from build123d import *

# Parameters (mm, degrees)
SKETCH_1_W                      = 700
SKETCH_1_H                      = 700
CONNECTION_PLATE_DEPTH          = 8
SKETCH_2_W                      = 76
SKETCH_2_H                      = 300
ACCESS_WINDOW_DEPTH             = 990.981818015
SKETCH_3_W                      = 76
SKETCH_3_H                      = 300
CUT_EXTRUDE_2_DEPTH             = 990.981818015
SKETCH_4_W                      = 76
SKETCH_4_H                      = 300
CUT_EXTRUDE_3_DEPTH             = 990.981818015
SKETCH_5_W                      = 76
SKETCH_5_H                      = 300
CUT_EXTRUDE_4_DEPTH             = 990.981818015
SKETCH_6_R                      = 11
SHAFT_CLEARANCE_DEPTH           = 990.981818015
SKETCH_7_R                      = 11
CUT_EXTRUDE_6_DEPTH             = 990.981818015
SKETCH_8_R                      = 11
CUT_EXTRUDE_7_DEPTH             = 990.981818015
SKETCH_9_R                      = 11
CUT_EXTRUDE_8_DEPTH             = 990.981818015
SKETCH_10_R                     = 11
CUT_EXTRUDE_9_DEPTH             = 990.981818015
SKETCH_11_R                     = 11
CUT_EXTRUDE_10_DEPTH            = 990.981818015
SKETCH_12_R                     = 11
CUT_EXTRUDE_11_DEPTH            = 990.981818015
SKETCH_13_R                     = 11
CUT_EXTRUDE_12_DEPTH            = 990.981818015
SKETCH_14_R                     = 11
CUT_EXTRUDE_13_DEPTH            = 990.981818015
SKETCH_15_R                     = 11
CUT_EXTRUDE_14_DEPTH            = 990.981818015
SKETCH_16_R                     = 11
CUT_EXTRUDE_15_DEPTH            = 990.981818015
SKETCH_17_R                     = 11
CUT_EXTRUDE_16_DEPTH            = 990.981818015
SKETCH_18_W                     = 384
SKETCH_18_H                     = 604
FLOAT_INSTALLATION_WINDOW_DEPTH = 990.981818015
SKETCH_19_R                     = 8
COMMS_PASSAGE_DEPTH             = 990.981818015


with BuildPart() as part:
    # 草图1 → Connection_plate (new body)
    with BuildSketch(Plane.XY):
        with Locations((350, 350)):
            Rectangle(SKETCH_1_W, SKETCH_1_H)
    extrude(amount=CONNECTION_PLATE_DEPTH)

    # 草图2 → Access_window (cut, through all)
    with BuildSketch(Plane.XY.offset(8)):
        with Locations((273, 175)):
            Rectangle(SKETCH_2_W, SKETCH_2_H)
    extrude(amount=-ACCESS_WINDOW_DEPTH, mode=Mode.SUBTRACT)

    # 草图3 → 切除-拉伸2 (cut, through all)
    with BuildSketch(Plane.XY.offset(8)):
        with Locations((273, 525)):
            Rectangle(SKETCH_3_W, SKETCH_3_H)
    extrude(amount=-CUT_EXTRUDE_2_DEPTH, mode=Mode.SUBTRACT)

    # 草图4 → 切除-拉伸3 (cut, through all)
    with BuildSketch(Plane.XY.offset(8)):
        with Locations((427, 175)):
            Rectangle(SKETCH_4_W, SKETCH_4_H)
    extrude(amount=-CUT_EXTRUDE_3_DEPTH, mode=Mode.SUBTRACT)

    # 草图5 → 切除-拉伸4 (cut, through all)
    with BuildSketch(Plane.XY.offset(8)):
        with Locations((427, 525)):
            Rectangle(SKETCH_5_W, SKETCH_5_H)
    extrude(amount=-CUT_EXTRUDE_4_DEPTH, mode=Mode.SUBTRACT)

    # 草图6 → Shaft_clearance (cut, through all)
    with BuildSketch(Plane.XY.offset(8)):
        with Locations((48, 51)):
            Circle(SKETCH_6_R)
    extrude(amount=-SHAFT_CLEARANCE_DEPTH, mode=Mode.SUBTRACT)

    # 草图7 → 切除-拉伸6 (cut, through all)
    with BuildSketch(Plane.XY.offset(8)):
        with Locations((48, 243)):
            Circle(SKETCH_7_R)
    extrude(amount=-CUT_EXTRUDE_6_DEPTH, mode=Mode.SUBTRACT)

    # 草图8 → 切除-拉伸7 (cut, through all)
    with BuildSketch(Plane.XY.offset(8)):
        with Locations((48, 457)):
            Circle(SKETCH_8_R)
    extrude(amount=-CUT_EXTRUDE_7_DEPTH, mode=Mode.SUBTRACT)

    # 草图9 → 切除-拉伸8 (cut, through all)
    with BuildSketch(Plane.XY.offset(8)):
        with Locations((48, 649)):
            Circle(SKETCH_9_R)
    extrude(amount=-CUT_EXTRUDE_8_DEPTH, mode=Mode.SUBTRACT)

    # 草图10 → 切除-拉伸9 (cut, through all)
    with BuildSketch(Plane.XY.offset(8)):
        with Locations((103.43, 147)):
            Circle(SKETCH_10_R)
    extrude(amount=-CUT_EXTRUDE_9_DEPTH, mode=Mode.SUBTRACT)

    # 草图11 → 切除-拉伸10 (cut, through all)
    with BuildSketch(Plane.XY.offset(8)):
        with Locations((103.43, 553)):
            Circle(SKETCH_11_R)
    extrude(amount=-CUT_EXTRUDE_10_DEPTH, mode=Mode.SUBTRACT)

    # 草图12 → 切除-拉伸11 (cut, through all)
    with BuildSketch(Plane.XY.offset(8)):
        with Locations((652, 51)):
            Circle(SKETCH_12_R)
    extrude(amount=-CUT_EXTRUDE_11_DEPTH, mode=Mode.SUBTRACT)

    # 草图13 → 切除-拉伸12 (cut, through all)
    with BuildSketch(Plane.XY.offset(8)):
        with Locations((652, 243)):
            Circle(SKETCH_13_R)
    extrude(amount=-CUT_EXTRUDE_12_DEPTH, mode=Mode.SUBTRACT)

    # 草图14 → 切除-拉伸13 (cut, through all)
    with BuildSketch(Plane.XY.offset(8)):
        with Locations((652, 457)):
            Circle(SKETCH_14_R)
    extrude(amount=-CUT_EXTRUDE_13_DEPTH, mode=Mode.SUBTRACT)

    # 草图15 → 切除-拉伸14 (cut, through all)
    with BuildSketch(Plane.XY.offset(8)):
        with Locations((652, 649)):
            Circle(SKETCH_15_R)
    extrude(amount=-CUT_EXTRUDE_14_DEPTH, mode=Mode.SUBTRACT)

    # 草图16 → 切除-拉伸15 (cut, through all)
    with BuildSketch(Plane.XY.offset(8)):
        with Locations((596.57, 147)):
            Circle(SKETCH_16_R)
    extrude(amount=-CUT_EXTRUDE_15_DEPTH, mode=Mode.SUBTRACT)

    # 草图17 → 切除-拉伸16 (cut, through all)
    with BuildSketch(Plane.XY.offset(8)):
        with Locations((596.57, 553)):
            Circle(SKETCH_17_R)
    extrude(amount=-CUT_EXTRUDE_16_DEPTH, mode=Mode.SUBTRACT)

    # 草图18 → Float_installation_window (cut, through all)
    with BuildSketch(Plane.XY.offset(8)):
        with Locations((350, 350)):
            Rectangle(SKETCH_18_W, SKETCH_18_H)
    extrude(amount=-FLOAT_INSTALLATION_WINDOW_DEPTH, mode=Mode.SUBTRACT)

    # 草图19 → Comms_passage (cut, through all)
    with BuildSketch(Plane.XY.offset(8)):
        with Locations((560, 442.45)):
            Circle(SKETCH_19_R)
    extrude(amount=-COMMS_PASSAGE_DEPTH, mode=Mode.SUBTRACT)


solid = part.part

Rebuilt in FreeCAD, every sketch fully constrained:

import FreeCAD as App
import Part
import Sketcher

doc = App.newDocument("Part")
params = doc.addObject("Spreadsheet::Sheet", "Params")
for row, (alias, value) in enumerate([
    ("sketch1_width", "700 mm"),
    ("pad1_length", "8 mm"),
    ("sketch2_width", "76 mm"),
    ("sketch2_height", "300 mm"),
    ("sketch3_width", "76 mm"),
    ("sketch3_height", "300 mm"),
    ("sketch4_width", "76 mm"),
    ("sketch4_height", "300 mm"),
    ("sketch5_width", "76 mm"),
    ("sketch5_height", "300 mm"),
    ("sketch6_diameter", "22 mm"),
    ("sketch7_diameter", "22 mm"),
    ("sketch8_diameter", "22 mm"),
    ("sketch9_diameter", "22 mm"),
    ("sketch10_diameter", "22 mm"),
    ("sketch11_diameter", "22 mm"),
    ("sketch12_diameter", "22 mm"),
    ("sketch13_diameter", "22 mm"),
    ("sketch14_diameter", "22 mm"),
    ("sketch15_diameter", "22 mm"),
    ("sketch16_diameter", "22 mm"),
    ("sketch17_diameter", "22 mm"),
    ("sketch18_width", "384 mm"),
    ("sketch18_height", "604 mm"),
    ("sketch19_diameter", "16 mm"),
], start=1):
    params.set(f"A{row}", alias)
    params.set(f"B{row}", "=" + value)
    params.setAlias(f"B{row}", alias)

body = doc.addObject("PartDesign::Body", "Body")

# Sketch on XY plane
sketch1 = doc.addObject("Sketcher::SketchObject", "Sketch")
body.addObject(sketch1)
sketch1.AttachmentSupport = (doc.XY_Plane, [""])
sketch1.MapMode = "FlatFace"
sketch1.addGeometry([
    Part.LineSegment(App.Vector(0, 700, 0), App.Vector(0, 0, 0)),
    Part.LineSegment(App.Vector(0, 0, 0), App.Vector(700, 0, 0)),
    Part.LineSegment(App.Vector(700, 0, 0), App.Vector(700, 700, 0)),
    Part.LineSegment(App.Vector(700, 700, 0), App.Vector(0, 700, 0)),
], False)
sketch1.addConstraint([
    Sketcher.Constraint("Coincident", 0, 2, 1, 1),
    Sketcher.Constraint("Coincident", 1, 2, 2, 1),
    Sketcher.Constraint("Coincident", 2, 2, 3, 1),
    Sketcher.Constraint("Coincident", 3, 2, 0, 1),
    Sketcher.Constraint("Vertical", 0),
    Sketcher.Constraint("Horizontal", 1),
    Sketcher.Constraint("Vertical", 2),
    Sketcher.Constraint("Horizontal", 3),
    Sketcher.Constraint("Coincident", 0, 2, -1, 1),
    Sketcher.Constraint("Equal", 3, 0),
    Sketcher.Constraint("DistanceX", 1, 1, 1, 2, 700.0),
])
sketch1.setExpression("Constraints[10]", "Params.sketch1_width")
pad1 = doc.addObject("PartDesign::Pad", "Pad")
body.addObject(pad1)
pad1.Profile = sketch1
pad1.setExpression("Length", "Params.pad1_length")

# Sketch on XY plane
sketch2 = doc.addObject("Sketcher::SketchObject", "Sketch001")
body.addObject(sketch2)
sketch2.AttachmentSupport = (doc.XY_Plane, [""])
sketch2.MapMode = "FlatFace"
sketch2.AttachmentOffset = App.Placement(App.Vector(0, 0, 8), App.Rotation())
sketch2.addGeometry([
    Part.LineSegment(App.Vector(235, 325, 0), App.Vector(235, 25, 0)),
    Part.LineSegment(App.Vector(235, 25, 0), App.Vector(311, 25, 0)),
    Part.LineSegment(App.Vector(311, 25, 0), App.Vector(311, 325, 0)),
    Part.LineSegment(App.Vector(311, 325, 0), App.Vector(235, 325, 0)),
], False)
sketch2.addConstraint([
    Sketcher.Constraint("Coincident", 0, 2, 1, 1),
    Sketcher.Constraint("Coincident", 1, 2, 2, 1),
    Sketcher.Constraint("Coincident", 2, 2, 3, 1),
    Sketcher.Constraint("Coincident", 3, 2, 0, 1),
    Sketcher.Constraint("Vertical", 0),
    Sketcher.Constraint("Horizontal", 1),
    Sketcher.Constraint("Vertical", 2),
    Sketcher.Constraint("Horizontal", 3),
    Sketcher.Constraint("DistanceX", 1, 1, 1, 2, 76.0),
    Sketcher.Constraint("DistanceY", 0, 2, 0, 1, 300.0),
    Sketcher.Constraint("DistanceX", -1, 1, 0, 2, 235.0),
    Sketcher.Constraint("DistanceY", -1, 1, 0, 2, 25.0),
])
sketch2.setExpression("Constraints[8]", "Params.sketch2_width")
sketch2.setExpression("Constraints[9]", "Params.sketch2_height")
pocket1 = doc.addObject("PartDesign::Pocket", "Pocket")
body.addObject(pocket1)
pocket1.Profile = sketch2
pocket1.Type = "ThroughAll"

# Sketch on XY plane
sketch3 = doc.addObject("Sketcher::SketchObject", "Sketch002")
body.addObject(sketch3)
sketch3.AttachmentSupport = (doc.XY_Plane, [""])
sketch3.MapMode = "FlatFace"
sketch3.AttachmentOffset = App.Placement(App.Vector(0, 0, 8), App.Rotation())
sketch3.addGeometry([
    Part.LineSegment(App.Vector(235, 675, 0), App.Vector(235, 375, 0)),
    Part.LineSegment(App.Vector(235, 375, 0), App.Vector(311, 375, 0)),
    Part.LineSegment(App.Vector(311, 375, 0), App.Vector(311, 675, 0)),
    Part.LineSegment(App.Vector(311, 675, 0), App.Vector(235, 675, 0)),
], False)
sketch3.addConstraint([
    Sketcher.Constraint("Coincident", 0, 2, 1, 1),
    Sketcher.Constraint("Coincident", 1, 2, 2, 1),
    Sketcher.Constraint("Coincident", 2, 2, 3, 1),
    Sketcher.Constraint("Coincident", 3, 2, 0, 1),
    Sketcher.Constraint("Vertical", 0),
    Sketcher.Constraint("Horizontal", 1),
    Sketcher.Constraint("Vertical", 2),
    Sketcher.Constraint("Horizontal", 3),
    Sketcher.Constraint("DistanceX", 1, 1, 1, 2, 76.0),
    Sketcher.Constraint("DistanceY", 0, 2, 0, 1, 300.0),
    Sketcher.Constraint("DistanceX", -1, 1, 0, 2, 235.0),
    Sketcher.Constraint("DistanceY", -1, 1, 0, 2, 375.0),
])
sketch3.setExpression("Constraints[8]", "Params.sketch3_width")
sketch3.setExpression("Constraints[9]", "Params.sketch3_height")
pocket2 = doc.addObject("PartDesign::Pocket", "Pocket001")
body.addObject(pocket2)
pocket2.Profile = sketch3
pocket2.Type = "ThroughAll"

# Sketch on XY plane
sketch4 = doc.addObject("Sketcher::SketchObject", "Sketch003")
body.addObject(sketch4)
sketch4.AttachmentSupport = (doc.XY_Plane, [""])
sketch4.MapMode = "FlatFace"
sketch4.AttachmentOffset = App.Placement(App.Vector(0, 0, 8), App.Rotation())
sketch4.addGeometry([
    Part.LineSegment(App.Vector(389, 325, 0), App.Vector(389, 25, 0)),
    Part.LineSegment(App.Vector(389, 25, 0), App.Vector(465, 25, 0)),
    Part.LineSegment(App.Vector(465, 25, 0), App.Vector(465, 325, 0)),
    Part.LineSegment(App.Vector(465, 325, 0), App.Vector(389, 325, 0)),
], False)
sketch4.addConstraint([
    Sketcher.Constraint("Coincident", 0, 2, 1, 1),
    Sketcher.Constraint("Coincident", 1, 2, 2, 1),
    Sketcher.Constraint("Coincident", 2, 2, 3, 1),
    Sketcher.Constraint("Coincident", 3, 2, 0, 1),
    Sketcher.Constraint("Vertical", 0),
    Sketcher.Constraint("Horizontal", 1),
    Sketcher.Constraint("Vertical", 2),
    Sketcher.Constraint("Horizontal", 3),
    Sketcher.Constraint("DistanceX", 1, 1, 1, 2, 76.0),
    Sketcher.Constraint("DistanceY", 0, 2, 0, 1, 300.0),
    Sketcher.Constraint("DistanceX", -1, 1, 0, 2, 389.0),
    Sketcher.Constraint("DistanceY", -1, 1, 0, 2, 25.0),
])
sketch4.setExpression("Constraints[8]", "Params.sketch4_width")
sketch4.setExpression("Constraints[9]", "Params.sketch4_height")
pocket3 = doc.addObject("PartDesign::Pocket", "Pocket002")
body.addObject(pocket3)
pocket3.Profile = sketch4
pocket3.Type = "ThroughAll"

# Sketch on XY plane
sketch5 = doc.addObject("Sketcher::SketchObject", "Sketch004")
body.addObject(sketch5)
sketch5.AttachmentSupport = (doc.XY_Plane, [""])
sketch5.MapMode = "FlatFace"
sketch5.AttachmentOffset = App.Placement(App.Vector(0, 0, 8), App.Rotation())
sketch5.addGeometry([
    Part.LineSegment(App.Vector(389, 675, 0), App.Vector(389, 375, 0)),
    Part.LineSegment(App.Vector(389, 375, 0), App.Vector(465, 375, 0)),
    Part.LineSegment(App.Vector(465, 375, 0), App.Vector(465, 675, 0)),
    Part.LineSegment(App.Vector(465, 675, 0), App.Vector(389, 675, 0)),
], False)
sketch5.addConstraint([
    Sketcher.Constraint("Coincident", 0, 2, 1, 1),
    Sketcher.Constraint("Coincident", 1, 2, 2, 1),
    Sketcher.Constraint("Coincident", 2, 2, 3, 1),
    Sketcher.Constraint("Coincident", 3, 2, 0, 1),
    Sketcher.Constraint("Vertical", 0),
    Sketcher.Constraint("Horizontal", 1),
    Sketcher.Constraint("Vertical", 2),
    Sketcher.Constraint("Horizontal", 3),
    Sketcher.Constraint("DistanceX", 1, 1, 1, 2, 76.0),
    Sketcher.Constraint("DistanceY", 0, 2, 0, 1, 300.0),
    Sketcher.Constraint("DistanceX", -1, 1, 0, 2, 389.0),
    Sketcher.Constraint("DistanceY", -1, 1, 0, 2, 375.0),
])
sketch5.setExpression("Constraints[8]", "Params.sketch5_width")
sketch5.setExpression("Constraints[9]", "Params.sketch5_height")
pocket4 = doc.addObject("PartDesign::Pocket", "Pocket003")
body.addObject(pocket4)
pocket4.Profile = sketch5
pocket4.Type = "ThroughAll"

# Sketch on XY plane
sketch6 = doc.addObject("Sketcher::SketchObject", "Sketch005")
body.addObject(sketch6)
sketch6.AttachmentSupport = (doc.XY_Plane, [""])
sketch6.MapMode = "FlatFace"
sketch6.AttachmentOffset = App.Placement(App.Vector(0, 0, 8), App.Rotation())
sketch6.addGeometry(Part.Circle(App.Vector(48, 51, 0), App.Vector(0, 0, 1), 11), False)
sketch6.addConstraint([
    Sketcher.Constraint("Diameter", 0, 22.0),
    Sketcher.Constraint("DistanceX", -1, 1, 0, 3, 48.0),
    Sketcher.Constraint("DistanceY", -1, 1, 0, 3, 51.0),
])
sketch6.setExpression("Constraints[0]", "Params.sketch6_diameter")
pocket5 = doc.addObject("PartDesign::Pocket", "Pocket004")
body.addObject(pocket5)
pocket5.Profile = sketch6
pocket5.Type = "ThroughAll"

# Sketch on XY plane
sketch7 = doc.addObject("Sketcher::SketchObject", "Sketch006")
body.addObject(sketch7)
sketch7.AttachmentSupport = (doc.XY_Plane, [""])
sketch7.MapMode = "FlatFace"
sketch7.AttachmentOffset = App.Placement(App.Vector(0, 0, 8), App.Rotation())
sketch7.addGeometry(Part.Circle(App.Vector(48, 243, 0), App.Vector(0, 0, 1), 11), False)
sketch7.addConstraint([
    Sketcher.Constraint("Diameter", 0, 22.0),
    Sketcher.Constraint("DistanceX", -1, 1, 0, 3, 48.0),
    Sketcher.Constraint("DistanceY", -1, 1, 0, 3, 243.0),
])
sketch7.setExpression("Constraints[0]", "Params.sketch7_diameter")
pocket6 = doc.addObject("PartDesign::Pocket", "Pocket005")
body.addObject(pocket6)
pocket6.Profile = sketch7
pocket6.Type = "ThroughAll"

# Sketch on XY plane
sketch8 = doc.addObject("Sketcher::SketchObject", "Sketch007")
body.addObject(sketch8)
sketch8.AttachmentSupport = (doc.XY_Plane, [""])
sketch8.MapMode = "FlatFace"
sketch8.AttachmentOffset = App.Placement(App.Vector(0, 0, 8), App.Rotation())
sketch8.addGeometry(Part.Circle(App.Vector(48, 457, 0), App.Vector(0, 0, 1), 11), False)
sketch8.addConstraint([
    Sketcher.Constraint("Diameter", 0, 22.0),
    Sketcher.Constraint("DistanceX", -1, 1, 0, 3, 48.0),
    Sketcher.Constraint("DistanceY", -1, 1, 0, 3, 457.0),
])
sketch8.setExpression("Constraints[0]", "Params.sketch8_diameter")
pocket7 = doc.addObject("PartDesign::Pocket", "Pocket006")
body.addObject(pocket7)
pocket7.Profile = sketch8
pocket7.Type = "ThroughAll"

# Sketch on XY plane
sketch9 = doc.addObject("Sketcher::SketchObject", "Sketch008")
body.addObject(sketch9)
sketch9.AttachmentSupport = (doc.XY_Plane, [""])
sketch9.MapMode = "FlatFace"
sketch9.AttachmentOffset = App.Placement(App.Vector(0, 0, 8), App.Rotation())
sketch9.addGeometry(Part.Circle(App.Vector(48, 649, 0), App.Vector(0, 0, 1), 11), False)
sketch9.addConstraint([
    Sketcher.Constraint("Diameter", 0, 22.0),
    Sketcher.Constraint("DistanceX", -1, 1, 0, 3, 48.0),
    Sketcher.Constraint("DistanceY", -1, 1, 0, 3, 649.0),
])
sketch9.setExpression("Constraints[0]", "Params.sketch9_diameter")
pocket8 = doc.addObject("PartDesign::Pocket", "Pocket007")
body.addObject(pocket8)
pocket8.Profile = sketch9
pocket8.Type = "ThroughAll"

# Sketch on XY plane
sketch10 = doc.addObject("Sketcher::SketchObject", "Sketch009")
body.addObject(sketch10)
sketch10.AttachmentSupport = (doc.XY_Plane, [""])
sketch10.MapMode = "FlatFace"
sketch10.AttachmentOffset = App.Placement(App.Vector(0, 0, 8), App.Rotation())
sketch10.addGeometry(Part.Circle(App.Vector(103, 147, 0), App.Vector(0, 0, 1), 11), False)
sketch10.addConstraint([
    Sketcher.Constraint("Diameter", 0, 22.0),
    Sketcher.Constraint("DistanceY", -1, 1, 0, 3, 147.0),
    Sketcher.Constraint("DistanceX", -1, 1, 0, 3, 103.43),
])
sketch10.setExpression("Constraints[0]", "Params.sketch10_diameter")
pocket9 = doc.addObject("PartDesign::Pocket", "Pocket008")
body.addObject(pocket9)
pocket9.Profile = sketch10
pocket9.Type = "ThroughAll"

# Sketch on XY plane
sketch11 = doc.addObject("Sketcher::SketchObject", "Sketch010")
body.addObject(sketch11)
sketch11.AttachmentSupport = (doc.XY_Plane, [""])
sketch11.MapMode = "FlatFace"
sketch11.AttachmentOffset = App.Placement(App.Vector(0, 0, 8), App.Rotation())
sketch11.addGeometry(Part.Circle(App.Vector(103, 553, 0), App.Vector(0, 0, 1), 11), False)
sketch11.addConstraint([
    Sketcher.Constraint("Diameter", 0, 22.0),
    Sketcher.Constraint("DistanceY", -1, 1, 0, 3, 553.0),
    Sketcher.Constraint("DistanceX", -1, 1, 0, 3, 103.43),
])
sketch11.setExpression("Constraints[0]", "Params.sketch11_diameter")
pocket10 = doc.addObject("PartDesign::Pocket", "Pocket009")
body.addObject(pocket10)
pocket10.Profile = sketch11
pocket10.Type = "ThroughAll"

# Sketch on XY plane
sketch12 = doc.addObject("Sketcher::SketchObject", "Sketch011")
body.addObject(sketch12)
sketch12.AttachmentSupport = (doc.XY_Plane, [""])
sketch12.MapMode = "FlatFace"
sketch12.AttachmentOffset = App.Placement(App.Vector(0, 0, 8), App.Rotation())
sketch12.addGeometry(Part.Circle(App.Vector(652, 51, 0), App.Vector(0, 0, 1), 11), False)
sketch12.addConstraint([
    Sketcher.Constraint("Diameter", 0, 22.0),
    Sketcher.Constraint("DistanceX", -1, 1, 0, 3, 652.0),
    Sketcher.Constraint("DistanceY", -1, 1, 0, 3, 51.0),
])
sketch12.setExpression("Constraints[0]", "Params.sketch12_diameter")
pocket11 = doc.addObject("PartDesign::Pocket", "Pocket010")
body.addObject(pocket11)
pocket11.Profile = sketch12
pocket11.Type = "ThroughAll"

# Sketch on XY plane
sketch13 = doc.addObject("Sketcher::SketchObject", "Sketch012")
body.addObject(sketch13)
sketch13.AttachmentSupport = (doc.XY_Plane, [""])
sketch13.MapMode = "FlatFace"
sketch13.AttachmentOffset = App.Placement(App.Vector(0, 0, 8), App.Rotation())
sketch13.addGeometry(Part.Circle(App.Vector(652, 243, 0), App.Vector(0, 0, 1), 11), False)
sketch13.addConstraint([
    Sketcher.Constraint("Diameter", 0, 22.0),
    Sketcher.Constraint("DistanceX", -1, 1, 0, 3, 652.0),
    Sketcher.Constraint("DistanceY", -1, 1, 0, 3, 243.0),
])
sketch13.setExpression("Constraints[0]", "Params.sketch13_diameter")
pocket12 = doc.addObject("PartDesign::Pocket", "Pocket011")
body.addObject(pocket12)
pocket12.Profile = sketch13
pocket12.Type = "ThroughAll"

# Sketch on XY plane
sketch14 = doc.addObject("Sketcher::SketchObject", "Sketch013")
body.addObject(sketch14)
sketch14.AttachmentSupport = (doc.XY_Plane, [""])
sketch14.MapMode = "FlatFace"
sketch14.AttachmentOffset = App.Placement(App.Vector(0, 0, 8), App.Rotation())
sketch14.addGeometry(Part.Circle(App.Vector(652, 457, 0), App.Vector(0, 0, 1), 11), False)
sketch14.addConstraint([
    Sketcher.Constraint("Diameter", 0, 22.0),
    Sketcher.Constraint("DistanceX", -1, 1, 0, 3, 652.0),
    Sketcher.Constraint("DistanceY", -1, 1, 0, 3, 457.0),
])
sketch14.setExpression("Constraints[0]", "Params.sketch14_diameter")
pocket13 = doc.addObject("PartDesign::Pocket", "Pocket012")
body.addObject(pocket13)
pocket13.Profile = sketch14
pocket13.Type = "ThroughAll"

# Sketch on XY plane
sketch15 = doc.addObject("Sketcher::SketchObject", "Sketch014")
body.addObject(sketch15)
sketch15.AttachmentSupport = (doc.XY_Plane, [""])
sketch15.MapMode = "FlatFace"
sketch15.AttachmentOffset = App.Placement(App.Vector(0, 0, 8), App.Rotation())
sketch15.addGeometry(Part.Circle(App.Vector(652, 649, 0), App.Vector(0, 0, 1), 11), False)
sketch15.addConstraint([
    Sketcher.Constraint("Diameter", 0, 22.0),
    Sketcher.Constraint("DistanceX", -1, 1, 0, 3, 652.0),
    Sketcher.Constraint("DistanceY", -1, 1, 0, 3, 649.0),
])
sketch15.setExpression("Constraints[0]", "Params.sketch15_diameter")
pocket14 = doc.addObject("PartDesign::Pocket", "Pocket013")
body.addObject(pocket14)
pocket14.Profile = sketch15
pocket14.Type = "ThroughAll"

# Sketch on XY plane
sketch16 = doc.addObject("Sketcher::SketchObject", "Sketch015")
body.addObject(sketch16)
sketch16.AttachmentSupport = (doc.XY_Plane, [""])
sketch16.MapMode = "FlatFace"
sketch16.AttachmentOffset = App.Placement(App.Vector(0, 0, 8), App.Rotation())
sketch16.addGeometry(Part.Circle(App.Vector(597, 147, 0), App.Vector(0, 0, 1), 11), False)
sketch16.addConstraint([
    Sketcher.Constraint("Diameter", 0, 22.0),
    Sketcher.Constraint("DistanceY", -1, 1, 0, 3, 147.0),
    Sketcher.Constraint("DistanceX", -1, 1, 0, 3, 596.57),
])
sketch16.setExpression("Constraints[0]", "Params.sketch16_diameter")
pocket15 = doc.addObject("PartDesign::Pocket", "Pocket014")
body.addObject(pocket15)
pocket15.Profile = sketch16
pocket15.Type = "ThroughAll"

# Sketch on XY plane
sketch17 = doc.addObject("Sketcher::SketchObject", "Sketch016")
body.addObject(sketch17)
sketch17.AttachmentSupport = (doc.XY_Plane, [""])
sketch17.MapMode = "FlatFace"
sketch17.AttachmentOffset = App.Placement(App.Vector(0, 0, 8), App.Rotation())
sketch17.addGeometry(Part.Circle(App.Vector(597, 553, 0), App.Vector(0, 0, 1), 11), False)
sketch17.addConstraint([
    Sketcher.Constraint("Diameter", 0, 22.0),
    Sketcher.Constraint("DistanceY", -1, 1, 0, 3, 553.0),
    Sketcher.Constraint("DistanceX", -1, 1, 0, 3, 596.57),
])
sketch17.setExpression("Constraints[0]", "Params.sketch17_diameter")
pocket16 = doc.addObject("PartDesign::Pocket", "Pocket015")
body.addObject(pocket16)
pocket16.Profile = sketch17
pocket16.Type = "ThroughAll"

# Sketch on XY plane
sketch18 = doc.addObject("Sketcher::SketchObject", "Sketch017")
body.addObject(sketch18)
sketch18.AttachmentSupport = (doc.XY_Plane, [""])
sketch18.MapMode = "FlatFace"
sketch18.AttachmentOffset = App.Placement(App.Vector(0, 0, 8), App.Rotation())
sketch18.addGeometry([
    Part.LineSegment(App.Vector(158, 652, 0), App.Vector(158, 48, 0)),
    Part.LineSegment(App.Vector(158, 48, 0), App.Vector(542, 48, 0)),
    Part.LineSegment(App.Vector(542, 48, 0), App.Vector(542, 652, 0)),
    Part.LineSegment(App.Vector(542, 652, 0), App.Vector(158, 652, 0)),
], False)
sketch18.addConstraint([
    Sketcher.Constraint("Coincident", 0, 2, 1, 1),
    Sketcher.Constraint("Coincident", 1, 2, 2, 1),
    Sketcher.Constraint("Coincident", 2, 2, 3, 1),
    Sketcher.Constraint("Coincident", 3, 2, 0, 1),
    Sketcher.Constraint("Vertical", 0),
    Sketcher.Constraint("Horizontal", 1),
    Sketcher.Constraint("Vertical", 2),
    Sketcher.Constraint("Horizontal", 3),
    Sketcher.Constraint("DistanceX", 1, 1, 1, 2, 384.0),
    Sketcher.Constraint("DistanceY", 0, 2, 0, 1, 604.0),
    Sketcher.Constraint("DistanceX", -1, 1, 0, 2, 158.0),
    Sketcher.Constraint("DistanceY", -1, 1, 0, 2, 48.0),
])
sketch18.setExpression("Constraints[8]", "Params.sketch18_width")
sketch18.setExpression("Constraints[9]", "Params.sketch18_height")
pocket17 = doc.addObject("PartDesign::Pocket", "Pocket016")
body.addObject(pocket17)
pocket17.Profile = sketch18
pocket17.Type = "ThroughAll"

# Sketch on XY plane
sketch19 = doc.addObject("Sketcher::SketchObject", "Sketch018")
body.addObject(sketch19)
sketch19.AttachmentSupport = (doc.XY_Plane, [""])
sketch19.MapMode = "FlatFace"
sketch19.AttachmentOffset = App.Placement(App.Vector(0, 0, 8), App.Rotation())
sketch19.addGeometry(Part.Circle(App.Vector(560, 442, 0), App.Vector(0, 0, 1), 8), False)
sketch19.addConstraint([
    Sketcher.Constraint("Diameter", 0, 16.0),
    Sketcher.Constraint("DistanceX", -1, 1, 0, 3, 560.0),
    Sketcher.Constraint("DistanceY", -1, 1, 0, 3, 442.45),
])
sketch19.setExpression("Constraints[0]", "Params.sketch19_diameter")
pocket18 = doc.addObject("PartDesign::Pocket", "Pocket017")
body.addObject(pocket18)
pocket18.Profile = sketch19
pocket18.Type = "ThroughAll"

doc.recompute()
